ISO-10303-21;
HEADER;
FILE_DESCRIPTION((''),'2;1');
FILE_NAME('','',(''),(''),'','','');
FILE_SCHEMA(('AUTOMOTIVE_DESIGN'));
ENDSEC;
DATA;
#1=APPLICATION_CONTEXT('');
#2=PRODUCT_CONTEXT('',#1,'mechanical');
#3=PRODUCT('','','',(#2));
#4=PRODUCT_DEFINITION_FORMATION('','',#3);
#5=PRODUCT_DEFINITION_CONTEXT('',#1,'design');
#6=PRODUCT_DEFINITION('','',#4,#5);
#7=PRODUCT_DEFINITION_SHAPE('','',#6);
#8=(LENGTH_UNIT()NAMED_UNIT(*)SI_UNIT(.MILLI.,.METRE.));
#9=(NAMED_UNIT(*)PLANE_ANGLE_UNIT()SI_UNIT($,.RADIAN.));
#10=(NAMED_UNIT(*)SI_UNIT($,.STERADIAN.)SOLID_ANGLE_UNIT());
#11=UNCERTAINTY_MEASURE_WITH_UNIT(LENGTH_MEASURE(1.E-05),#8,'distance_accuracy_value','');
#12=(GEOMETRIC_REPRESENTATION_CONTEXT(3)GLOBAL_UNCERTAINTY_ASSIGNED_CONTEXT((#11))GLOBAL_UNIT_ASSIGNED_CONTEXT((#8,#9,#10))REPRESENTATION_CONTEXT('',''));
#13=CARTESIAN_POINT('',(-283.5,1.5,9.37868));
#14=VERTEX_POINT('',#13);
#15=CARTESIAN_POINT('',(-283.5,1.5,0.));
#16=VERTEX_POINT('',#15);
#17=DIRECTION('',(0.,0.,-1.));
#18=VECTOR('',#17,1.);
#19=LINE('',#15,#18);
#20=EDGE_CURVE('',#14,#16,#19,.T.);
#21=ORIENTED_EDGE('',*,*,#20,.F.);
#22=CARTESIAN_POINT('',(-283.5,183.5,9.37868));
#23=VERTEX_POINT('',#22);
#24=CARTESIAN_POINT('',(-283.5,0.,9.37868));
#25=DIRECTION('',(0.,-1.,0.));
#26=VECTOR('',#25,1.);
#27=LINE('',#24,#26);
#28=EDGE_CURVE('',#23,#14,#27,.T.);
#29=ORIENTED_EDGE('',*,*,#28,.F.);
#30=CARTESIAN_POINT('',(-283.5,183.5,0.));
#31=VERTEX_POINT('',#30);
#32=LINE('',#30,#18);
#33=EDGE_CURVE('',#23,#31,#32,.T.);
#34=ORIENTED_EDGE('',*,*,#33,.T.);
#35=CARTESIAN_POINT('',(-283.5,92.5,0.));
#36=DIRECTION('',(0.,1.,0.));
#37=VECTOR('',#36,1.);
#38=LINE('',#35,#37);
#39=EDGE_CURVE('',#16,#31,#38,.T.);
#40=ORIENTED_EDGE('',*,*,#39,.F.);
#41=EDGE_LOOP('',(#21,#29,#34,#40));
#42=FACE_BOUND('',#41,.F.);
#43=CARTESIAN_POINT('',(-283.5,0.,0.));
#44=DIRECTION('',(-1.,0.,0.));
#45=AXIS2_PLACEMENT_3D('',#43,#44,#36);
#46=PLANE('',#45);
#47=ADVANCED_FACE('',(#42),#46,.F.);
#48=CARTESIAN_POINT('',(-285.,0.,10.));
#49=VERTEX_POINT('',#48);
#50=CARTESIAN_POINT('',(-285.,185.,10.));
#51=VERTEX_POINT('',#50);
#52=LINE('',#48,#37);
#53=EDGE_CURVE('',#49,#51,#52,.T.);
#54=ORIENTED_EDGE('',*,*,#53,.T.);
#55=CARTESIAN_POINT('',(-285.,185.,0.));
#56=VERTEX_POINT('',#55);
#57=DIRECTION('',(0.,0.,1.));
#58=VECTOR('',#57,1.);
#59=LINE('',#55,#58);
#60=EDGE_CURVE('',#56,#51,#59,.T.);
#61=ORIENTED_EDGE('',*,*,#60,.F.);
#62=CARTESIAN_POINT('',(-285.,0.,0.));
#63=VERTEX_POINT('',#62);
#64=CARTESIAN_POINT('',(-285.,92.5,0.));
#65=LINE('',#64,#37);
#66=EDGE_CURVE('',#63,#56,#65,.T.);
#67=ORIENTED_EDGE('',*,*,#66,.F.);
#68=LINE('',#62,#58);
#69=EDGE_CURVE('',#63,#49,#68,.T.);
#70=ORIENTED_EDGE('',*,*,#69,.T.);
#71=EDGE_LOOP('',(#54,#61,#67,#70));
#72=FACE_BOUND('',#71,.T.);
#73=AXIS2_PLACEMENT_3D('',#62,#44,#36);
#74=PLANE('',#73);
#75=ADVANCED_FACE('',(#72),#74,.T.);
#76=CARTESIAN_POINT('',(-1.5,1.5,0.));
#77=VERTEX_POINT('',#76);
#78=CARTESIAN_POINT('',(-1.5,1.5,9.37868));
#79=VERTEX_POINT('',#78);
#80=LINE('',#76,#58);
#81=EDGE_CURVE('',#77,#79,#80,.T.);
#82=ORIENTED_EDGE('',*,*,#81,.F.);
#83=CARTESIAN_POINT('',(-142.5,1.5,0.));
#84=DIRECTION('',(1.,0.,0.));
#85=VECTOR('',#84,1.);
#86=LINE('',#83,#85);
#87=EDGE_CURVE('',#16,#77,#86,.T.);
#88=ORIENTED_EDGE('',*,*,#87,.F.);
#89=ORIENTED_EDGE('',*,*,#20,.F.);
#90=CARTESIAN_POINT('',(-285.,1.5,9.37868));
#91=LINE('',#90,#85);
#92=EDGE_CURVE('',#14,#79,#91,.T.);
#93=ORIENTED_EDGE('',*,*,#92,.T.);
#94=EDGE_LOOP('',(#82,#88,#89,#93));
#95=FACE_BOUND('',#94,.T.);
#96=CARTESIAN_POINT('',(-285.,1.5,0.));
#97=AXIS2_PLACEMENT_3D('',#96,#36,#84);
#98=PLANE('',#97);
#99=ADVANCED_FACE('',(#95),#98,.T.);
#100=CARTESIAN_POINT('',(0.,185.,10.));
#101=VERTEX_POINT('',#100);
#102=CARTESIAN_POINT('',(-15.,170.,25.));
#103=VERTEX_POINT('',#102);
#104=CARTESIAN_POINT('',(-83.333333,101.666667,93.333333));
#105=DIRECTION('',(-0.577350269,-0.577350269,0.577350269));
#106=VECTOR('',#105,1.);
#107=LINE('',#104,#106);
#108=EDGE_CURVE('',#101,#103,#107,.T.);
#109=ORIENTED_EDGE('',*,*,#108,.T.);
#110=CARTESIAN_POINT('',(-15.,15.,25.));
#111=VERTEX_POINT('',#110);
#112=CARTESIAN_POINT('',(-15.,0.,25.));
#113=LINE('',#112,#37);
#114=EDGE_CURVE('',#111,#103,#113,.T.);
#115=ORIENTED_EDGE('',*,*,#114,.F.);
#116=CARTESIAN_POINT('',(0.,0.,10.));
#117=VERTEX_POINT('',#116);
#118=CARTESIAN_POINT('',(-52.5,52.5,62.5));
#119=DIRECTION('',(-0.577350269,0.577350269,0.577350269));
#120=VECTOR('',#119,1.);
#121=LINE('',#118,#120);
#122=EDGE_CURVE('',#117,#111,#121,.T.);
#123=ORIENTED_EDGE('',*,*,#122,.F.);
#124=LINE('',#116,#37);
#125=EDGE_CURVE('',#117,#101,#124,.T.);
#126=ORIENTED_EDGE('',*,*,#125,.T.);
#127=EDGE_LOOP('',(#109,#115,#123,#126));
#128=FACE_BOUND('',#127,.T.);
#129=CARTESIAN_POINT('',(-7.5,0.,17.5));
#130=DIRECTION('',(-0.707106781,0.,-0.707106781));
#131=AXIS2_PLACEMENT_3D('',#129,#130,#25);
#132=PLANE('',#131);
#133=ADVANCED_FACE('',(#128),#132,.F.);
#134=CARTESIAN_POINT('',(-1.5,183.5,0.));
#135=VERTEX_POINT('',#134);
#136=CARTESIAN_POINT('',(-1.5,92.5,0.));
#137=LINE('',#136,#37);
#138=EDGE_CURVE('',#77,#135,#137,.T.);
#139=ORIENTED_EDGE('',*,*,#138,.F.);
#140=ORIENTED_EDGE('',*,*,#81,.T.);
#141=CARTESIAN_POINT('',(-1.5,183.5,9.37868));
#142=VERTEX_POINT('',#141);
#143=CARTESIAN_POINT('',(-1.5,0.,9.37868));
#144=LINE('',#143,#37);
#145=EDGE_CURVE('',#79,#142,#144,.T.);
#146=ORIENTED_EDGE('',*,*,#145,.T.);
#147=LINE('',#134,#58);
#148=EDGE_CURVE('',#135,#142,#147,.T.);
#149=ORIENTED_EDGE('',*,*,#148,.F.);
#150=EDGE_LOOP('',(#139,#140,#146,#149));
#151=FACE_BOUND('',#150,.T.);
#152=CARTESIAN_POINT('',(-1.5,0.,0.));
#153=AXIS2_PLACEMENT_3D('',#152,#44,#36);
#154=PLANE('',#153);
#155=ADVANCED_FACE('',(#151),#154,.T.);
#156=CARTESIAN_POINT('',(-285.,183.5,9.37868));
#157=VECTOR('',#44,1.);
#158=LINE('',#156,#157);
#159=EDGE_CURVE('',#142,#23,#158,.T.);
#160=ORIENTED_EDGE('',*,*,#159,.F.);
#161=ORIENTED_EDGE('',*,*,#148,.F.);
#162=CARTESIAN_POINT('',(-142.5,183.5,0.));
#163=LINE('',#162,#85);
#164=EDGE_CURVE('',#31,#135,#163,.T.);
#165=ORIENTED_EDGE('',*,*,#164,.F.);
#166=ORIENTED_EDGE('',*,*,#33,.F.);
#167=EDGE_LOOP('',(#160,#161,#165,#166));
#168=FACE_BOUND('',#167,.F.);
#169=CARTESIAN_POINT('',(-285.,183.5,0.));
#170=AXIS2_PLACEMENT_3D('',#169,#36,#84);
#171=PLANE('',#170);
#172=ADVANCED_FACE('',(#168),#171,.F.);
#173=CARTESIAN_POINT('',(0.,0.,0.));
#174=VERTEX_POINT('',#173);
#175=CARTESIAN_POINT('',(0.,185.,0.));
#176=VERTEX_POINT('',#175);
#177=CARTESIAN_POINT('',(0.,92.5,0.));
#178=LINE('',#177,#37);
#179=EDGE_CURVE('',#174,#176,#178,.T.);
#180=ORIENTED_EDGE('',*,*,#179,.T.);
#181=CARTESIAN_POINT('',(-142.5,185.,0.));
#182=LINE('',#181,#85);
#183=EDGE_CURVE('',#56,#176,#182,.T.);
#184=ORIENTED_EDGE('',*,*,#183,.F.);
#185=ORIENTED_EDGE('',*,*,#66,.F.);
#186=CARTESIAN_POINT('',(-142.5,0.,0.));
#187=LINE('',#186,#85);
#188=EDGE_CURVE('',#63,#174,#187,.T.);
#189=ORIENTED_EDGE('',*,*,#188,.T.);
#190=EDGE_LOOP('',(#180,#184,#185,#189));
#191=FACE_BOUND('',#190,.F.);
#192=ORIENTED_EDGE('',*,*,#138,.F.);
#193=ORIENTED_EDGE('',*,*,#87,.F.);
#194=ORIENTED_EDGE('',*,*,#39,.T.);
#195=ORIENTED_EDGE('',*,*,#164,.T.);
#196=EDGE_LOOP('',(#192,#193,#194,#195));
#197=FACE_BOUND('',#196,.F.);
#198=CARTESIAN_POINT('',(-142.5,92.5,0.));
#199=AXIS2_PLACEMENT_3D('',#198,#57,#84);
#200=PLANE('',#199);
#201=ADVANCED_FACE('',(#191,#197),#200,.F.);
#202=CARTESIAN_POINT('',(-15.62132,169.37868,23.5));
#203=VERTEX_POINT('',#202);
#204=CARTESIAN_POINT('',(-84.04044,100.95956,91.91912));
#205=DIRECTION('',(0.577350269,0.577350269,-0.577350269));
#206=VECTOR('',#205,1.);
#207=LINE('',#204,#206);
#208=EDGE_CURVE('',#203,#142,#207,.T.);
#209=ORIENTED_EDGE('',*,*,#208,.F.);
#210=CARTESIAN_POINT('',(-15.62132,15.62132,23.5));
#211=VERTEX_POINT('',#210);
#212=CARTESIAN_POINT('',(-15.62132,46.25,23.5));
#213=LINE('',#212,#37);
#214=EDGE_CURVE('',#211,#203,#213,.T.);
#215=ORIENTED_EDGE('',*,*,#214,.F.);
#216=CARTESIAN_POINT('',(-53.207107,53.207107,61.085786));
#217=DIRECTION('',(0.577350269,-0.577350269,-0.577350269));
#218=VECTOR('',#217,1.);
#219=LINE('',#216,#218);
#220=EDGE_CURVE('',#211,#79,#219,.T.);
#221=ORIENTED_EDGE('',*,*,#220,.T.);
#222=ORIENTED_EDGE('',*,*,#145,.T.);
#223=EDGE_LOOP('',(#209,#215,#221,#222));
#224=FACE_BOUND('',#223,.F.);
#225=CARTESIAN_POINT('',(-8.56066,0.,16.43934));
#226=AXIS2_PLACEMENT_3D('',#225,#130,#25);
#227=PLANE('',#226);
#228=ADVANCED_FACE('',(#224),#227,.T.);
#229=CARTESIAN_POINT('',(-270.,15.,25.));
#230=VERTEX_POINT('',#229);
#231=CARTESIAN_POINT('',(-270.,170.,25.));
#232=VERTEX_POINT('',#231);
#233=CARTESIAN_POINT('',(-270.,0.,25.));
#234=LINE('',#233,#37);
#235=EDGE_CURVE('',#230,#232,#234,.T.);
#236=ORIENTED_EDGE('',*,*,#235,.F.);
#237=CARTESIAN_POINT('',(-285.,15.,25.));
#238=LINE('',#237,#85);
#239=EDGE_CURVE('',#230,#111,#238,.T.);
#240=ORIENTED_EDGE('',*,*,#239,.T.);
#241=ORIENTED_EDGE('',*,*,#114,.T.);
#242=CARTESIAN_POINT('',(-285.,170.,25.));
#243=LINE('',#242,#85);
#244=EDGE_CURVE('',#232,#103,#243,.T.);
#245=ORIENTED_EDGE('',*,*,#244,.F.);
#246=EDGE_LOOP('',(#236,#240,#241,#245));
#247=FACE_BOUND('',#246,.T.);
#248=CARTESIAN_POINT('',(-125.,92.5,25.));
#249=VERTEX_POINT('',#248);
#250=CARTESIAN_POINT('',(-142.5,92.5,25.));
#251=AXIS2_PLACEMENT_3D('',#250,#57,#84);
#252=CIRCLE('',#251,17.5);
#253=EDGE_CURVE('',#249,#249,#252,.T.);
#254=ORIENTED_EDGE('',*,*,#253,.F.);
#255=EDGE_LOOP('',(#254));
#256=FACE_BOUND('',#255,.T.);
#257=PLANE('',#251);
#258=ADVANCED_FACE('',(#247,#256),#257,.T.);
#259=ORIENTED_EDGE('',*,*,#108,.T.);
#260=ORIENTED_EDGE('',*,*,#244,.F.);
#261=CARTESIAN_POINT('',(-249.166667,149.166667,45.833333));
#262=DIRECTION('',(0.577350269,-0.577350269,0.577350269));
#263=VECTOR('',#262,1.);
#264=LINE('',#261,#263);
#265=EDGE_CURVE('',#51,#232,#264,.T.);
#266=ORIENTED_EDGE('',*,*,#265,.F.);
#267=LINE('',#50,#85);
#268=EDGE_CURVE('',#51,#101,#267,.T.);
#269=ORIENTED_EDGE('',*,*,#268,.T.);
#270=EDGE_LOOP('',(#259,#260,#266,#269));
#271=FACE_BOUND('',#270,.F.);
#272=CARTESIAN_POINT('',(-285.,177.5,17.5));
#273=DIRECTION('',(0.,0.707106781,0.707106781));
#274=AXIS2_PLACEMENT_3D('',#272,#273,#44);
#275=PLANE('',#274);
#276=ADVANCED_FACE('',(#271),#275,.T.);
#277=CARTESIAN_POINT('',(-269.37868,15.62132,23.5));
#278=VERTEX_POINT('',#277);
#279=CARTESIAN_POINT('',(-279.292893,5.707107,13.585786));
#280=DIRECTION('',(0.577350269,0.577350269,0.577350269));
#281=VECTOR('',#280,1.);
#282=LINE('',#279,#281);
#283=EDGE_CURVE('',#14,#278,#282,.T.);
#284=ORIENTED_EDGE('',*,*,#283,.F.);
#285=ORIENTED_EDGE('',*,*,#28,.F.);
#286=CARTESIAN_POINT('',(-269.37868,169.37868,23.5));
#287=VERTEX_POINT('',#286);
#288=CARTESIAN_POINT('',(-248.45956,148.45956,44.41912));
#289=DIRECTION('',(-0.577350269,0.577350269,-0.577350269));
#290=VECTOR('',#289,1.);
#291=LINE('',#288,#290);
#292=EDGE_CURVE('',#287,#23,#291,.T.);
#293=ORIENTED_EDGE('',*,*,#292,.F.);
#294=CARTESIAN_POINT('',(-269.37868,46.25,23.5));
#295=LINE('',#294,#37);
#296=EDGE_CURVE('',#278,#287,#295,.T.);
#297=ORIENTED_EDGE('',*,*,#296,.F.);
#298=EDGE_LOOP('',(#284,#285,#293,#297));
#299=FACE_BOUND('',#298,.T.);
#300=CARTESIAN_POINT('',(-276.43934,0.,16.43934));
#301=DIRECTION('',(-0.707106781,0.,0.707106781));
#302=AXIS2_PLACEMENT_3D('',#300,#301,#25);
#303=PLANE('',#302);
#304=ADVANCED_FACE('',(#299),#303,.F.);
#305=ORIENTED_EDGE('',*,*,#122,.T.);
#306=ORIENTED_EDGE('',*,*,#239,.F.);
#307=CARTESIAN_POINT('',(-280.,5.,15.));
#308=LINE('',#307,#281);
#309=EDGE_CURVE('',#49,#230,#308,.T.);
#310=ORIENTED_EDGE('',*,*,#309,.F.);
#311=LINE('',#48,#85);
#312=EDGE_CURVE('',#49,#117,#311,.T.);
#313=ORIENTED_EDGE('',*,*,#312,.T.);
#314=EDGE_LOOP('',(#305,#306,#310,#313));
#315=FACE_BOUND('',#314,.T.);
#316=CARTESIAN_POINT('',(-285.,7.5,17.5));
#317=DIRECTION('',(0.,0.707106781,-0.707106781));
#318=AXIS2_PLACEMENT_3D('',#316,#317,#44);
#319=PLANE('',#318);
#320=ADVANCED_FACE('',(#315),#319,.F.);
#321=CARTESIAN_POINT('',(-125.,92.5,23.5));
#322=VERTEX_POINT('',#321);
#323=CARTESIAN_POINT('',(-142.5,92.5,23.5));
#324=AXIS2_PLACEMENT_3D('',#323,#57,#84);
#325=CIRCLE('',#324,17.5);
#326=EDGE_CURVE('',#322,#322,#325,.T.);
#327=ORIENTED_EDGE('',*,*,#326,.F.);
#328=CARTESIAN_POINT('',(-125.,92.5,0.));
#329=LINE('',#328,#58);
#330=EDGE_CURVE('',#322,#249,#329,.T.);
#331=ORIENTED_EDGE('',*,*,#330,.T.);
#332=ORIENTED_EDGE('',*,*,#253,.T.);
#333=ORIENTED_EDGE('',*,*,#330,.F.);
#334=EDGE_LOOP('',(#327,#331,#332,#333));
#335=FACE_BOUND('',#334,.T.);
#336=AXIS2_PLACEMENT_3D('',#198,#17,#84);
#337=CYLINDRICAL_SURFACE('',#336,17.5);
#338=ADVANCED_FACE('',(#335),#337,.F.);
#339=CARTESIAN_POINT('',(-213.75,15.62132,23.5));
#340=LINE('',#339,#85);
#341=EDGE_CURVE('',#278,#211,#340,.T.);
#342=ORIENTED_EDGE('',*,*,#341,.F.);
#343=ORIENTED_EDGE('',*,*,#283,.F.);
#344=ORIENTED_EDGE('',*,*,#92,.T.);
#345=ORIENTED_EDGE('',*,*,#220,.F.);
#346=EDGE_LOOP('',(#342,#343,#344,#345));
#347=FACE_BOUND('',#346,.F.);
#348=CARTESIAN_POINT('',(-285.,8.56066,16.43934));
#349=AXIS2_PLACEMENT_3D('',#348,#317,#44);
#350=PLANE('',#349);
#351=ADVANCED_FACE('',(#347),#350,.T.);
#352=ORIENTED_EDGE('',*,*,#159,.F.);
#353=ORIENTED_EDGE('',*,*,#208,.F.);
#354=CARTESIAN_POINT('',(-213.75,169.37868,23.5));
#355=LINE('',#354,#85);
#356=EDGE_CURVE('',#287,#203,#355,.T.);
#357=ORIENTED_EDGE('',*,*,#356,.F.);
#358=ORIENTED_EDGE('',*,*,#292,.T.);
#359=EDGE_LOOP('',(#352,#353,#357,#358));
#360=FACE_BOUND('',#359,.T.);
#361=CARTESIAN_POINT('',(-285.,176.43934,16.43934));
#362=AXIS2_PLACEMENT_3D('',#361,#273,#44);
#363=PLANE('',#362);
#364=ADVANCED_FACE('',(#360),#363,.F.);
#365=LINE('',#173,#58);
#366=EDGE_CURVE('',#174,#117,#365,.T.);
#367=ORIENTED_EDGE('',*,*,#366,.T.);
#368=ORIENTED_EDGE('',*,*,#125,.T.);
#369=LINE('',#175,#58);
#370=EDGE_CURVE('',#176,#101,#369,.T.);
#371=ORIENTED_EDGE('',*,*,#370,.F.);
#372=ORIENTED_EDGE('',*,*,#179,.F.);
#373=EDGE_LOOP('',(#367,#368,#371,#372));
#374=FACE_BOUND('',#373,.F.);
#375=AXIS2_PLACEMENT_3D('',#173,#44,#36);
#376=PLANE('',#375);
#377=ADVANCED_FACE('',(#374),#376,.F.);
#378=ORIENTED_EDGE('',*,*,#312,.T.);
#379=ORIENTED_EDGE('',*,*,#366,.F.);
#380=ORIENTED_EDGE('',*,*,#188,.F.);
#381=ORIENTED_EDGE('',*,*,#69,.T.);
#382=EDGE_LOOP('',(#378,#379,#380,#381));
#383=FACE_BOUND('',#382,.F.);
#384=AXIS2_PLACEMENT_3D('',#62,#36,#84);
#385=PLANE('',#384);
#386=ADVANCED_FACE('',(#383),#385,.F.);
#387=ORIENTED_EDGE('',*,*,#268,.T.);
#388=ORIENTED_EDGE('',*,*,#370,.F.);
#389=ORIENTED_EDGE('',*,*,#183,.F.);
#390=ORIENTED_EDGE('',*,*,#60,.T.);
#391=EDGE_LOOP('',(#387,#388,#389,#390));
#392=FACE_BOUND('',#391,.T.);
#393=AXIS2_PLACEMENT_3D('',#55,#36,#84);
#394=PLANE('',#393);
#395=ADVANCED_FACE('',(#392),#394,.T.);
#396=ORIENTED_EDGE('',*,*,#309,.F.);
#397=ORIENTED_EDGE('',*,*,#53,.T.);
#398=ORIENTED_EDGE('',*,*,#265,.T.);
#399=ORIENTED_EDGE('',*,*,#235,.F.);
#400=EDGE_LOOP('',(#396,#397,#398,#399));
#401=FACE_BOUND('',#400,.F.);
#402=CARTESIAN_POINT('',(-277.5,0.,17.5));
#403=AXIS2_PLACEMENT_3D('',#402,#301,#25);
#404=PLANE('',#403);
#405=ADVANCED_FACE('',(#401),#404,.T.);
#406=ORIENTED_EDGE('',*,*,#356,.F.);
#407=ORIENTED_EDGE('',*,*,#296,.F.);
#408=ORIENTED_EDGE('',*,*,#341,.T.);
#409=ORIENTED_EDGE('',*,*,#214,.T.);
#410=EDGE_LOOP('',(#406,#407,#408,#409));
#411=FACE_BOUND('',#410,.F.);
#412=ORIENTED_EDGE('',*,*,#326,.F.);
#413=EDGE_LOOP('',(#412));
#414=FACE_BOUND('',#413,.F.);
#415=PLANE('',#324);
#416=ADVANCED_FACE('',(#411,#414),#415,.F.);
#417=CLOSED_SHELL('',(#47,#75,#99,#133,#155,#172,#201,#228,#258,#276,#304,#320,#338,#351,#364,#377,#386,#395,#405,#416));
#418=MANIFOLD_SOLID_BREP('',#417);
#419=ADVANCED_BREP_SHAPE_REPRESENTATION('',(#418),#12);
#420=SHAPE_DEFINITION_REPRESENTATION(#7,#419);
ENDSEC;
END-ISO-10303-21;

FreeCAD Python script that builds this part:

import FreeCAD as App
import Part
import Sketcher


def edges_at(feature, points):
    """Names of the edges that pass closest to the given points."""
    edges = feature.Shape.Edges
    near = lambda p: min(range(len(edges)), key=lambda i: edges[i].distToShape(Part.Vertex(*p))[0])
    return sorted({f"Edge{near(p) + 1}" for p in points})


def faces_at(feature, points):
    """Names of the faces that lie closest to the given points."""
    faces = feature.Shape.Faces
    near = lambda p: min(range(len(faces)), key=lambda i: faces[i].distToShape(Part.Vertex(*p))[0])
    return sorted({f"Face{near(p) + 1}" for p in points})

doc = App.newDocument("Part")
body = doc.addObject("PartDesign::Body", "Body")

# Sketch on XY plane
sketch1 = doc.addObject("Sketcher::SketchObject", "Sketch")
body.addObject(sketch1)
sketch1.AttachmentSupport = (doc.XY_Plane, [""])
sketch1.MapMode = "FlatFace"
sketch1.addGeometry([
    Part.LineSegment(App.Vector(-285, 185, 0), App.Vector(-285, 0, 0)),  # 0
    Part.LineSegment(App.Vector(-285, 0, 0), App.Vector(0, 0, 0)),  # 1
    Part.LineSegment(App.Vector(0, 0, 0), App.Vector(0, 185, 0)),  # 2
    Part.LineSegment(App.Vector(0, 185, 0), App.Vector(-285, 185, 0)),  # 3
    Part.Circle(App.Vector(-142, 92, 0), App.Vector(0, 0, 1), 18),  # 4
], False)
sketch1.addConstraint([
    Sketcher.Constraint("Coincident", 0, 2, 1, 1),
    Sketcher.Constraint("Coincident", 1, 2, 2, 1),
    Sketcher.Constraint("Coincident", 2, 2, 3, 1),
    Sketcher.Constraint("Coincident", 3, 2, 0, 1),
    Sketcher.Constraint("Vertical", 0),
    Sketcher.Constraint("Horizontal", 1),
    Sketcher.Constraint("Vertical", 2),
    Sketcher.Constraint("Horizontal", 3),
    Sketcher.Constraint("Coincident", 1, 2, -1, 1),
    Sketcher.Constraint("Diameter", 4, 35.0),
    Sketcher.Constraint("DistanceX", 1, 1, 1, 2, 285.0),
    Sketcher.Constraint("DistanceY", 0, 2, 0, 1, 185.0),
    Sketcher.Constraint("DistanceX", 4, 3, -1, 1, 142.5),
    Sketcher.Constraint("DistanceY", -1, 1, 4, 3, 92.5),
])
pad1 = doc.addObject("PartDesign::Pad", "Pad")
body.addObject(pad1)
pad1.Profile = sketch1
pad1.Length = 25
doc.recompute()

chamfer = doc.addObject("PartDesign::Chamfer", "Chamfer")
body.addObject(chamfer)
chamfer.Base = (pad1, edges_at(pad1, [
    (0, 92.5, 25),
    (-142.5, 185, 25),
    (-285, 92.5, 25),
    (-142.5, 0, 25),
]))
chamfer.Size = 15
doc.recompute()

thickness = doc.addObject("PartDesign::Thickness", "Thickness")
body.addObject(thickness)
thickness.Base = (chamfer, faces_at(chamfer, [(-199.5, 55.5, 0), (-160, 92.5, 12.5)]))
thickness.Value = 1.5
thickness.Reversed = True
thickness.Join = "Arc"

doc.recompute()
